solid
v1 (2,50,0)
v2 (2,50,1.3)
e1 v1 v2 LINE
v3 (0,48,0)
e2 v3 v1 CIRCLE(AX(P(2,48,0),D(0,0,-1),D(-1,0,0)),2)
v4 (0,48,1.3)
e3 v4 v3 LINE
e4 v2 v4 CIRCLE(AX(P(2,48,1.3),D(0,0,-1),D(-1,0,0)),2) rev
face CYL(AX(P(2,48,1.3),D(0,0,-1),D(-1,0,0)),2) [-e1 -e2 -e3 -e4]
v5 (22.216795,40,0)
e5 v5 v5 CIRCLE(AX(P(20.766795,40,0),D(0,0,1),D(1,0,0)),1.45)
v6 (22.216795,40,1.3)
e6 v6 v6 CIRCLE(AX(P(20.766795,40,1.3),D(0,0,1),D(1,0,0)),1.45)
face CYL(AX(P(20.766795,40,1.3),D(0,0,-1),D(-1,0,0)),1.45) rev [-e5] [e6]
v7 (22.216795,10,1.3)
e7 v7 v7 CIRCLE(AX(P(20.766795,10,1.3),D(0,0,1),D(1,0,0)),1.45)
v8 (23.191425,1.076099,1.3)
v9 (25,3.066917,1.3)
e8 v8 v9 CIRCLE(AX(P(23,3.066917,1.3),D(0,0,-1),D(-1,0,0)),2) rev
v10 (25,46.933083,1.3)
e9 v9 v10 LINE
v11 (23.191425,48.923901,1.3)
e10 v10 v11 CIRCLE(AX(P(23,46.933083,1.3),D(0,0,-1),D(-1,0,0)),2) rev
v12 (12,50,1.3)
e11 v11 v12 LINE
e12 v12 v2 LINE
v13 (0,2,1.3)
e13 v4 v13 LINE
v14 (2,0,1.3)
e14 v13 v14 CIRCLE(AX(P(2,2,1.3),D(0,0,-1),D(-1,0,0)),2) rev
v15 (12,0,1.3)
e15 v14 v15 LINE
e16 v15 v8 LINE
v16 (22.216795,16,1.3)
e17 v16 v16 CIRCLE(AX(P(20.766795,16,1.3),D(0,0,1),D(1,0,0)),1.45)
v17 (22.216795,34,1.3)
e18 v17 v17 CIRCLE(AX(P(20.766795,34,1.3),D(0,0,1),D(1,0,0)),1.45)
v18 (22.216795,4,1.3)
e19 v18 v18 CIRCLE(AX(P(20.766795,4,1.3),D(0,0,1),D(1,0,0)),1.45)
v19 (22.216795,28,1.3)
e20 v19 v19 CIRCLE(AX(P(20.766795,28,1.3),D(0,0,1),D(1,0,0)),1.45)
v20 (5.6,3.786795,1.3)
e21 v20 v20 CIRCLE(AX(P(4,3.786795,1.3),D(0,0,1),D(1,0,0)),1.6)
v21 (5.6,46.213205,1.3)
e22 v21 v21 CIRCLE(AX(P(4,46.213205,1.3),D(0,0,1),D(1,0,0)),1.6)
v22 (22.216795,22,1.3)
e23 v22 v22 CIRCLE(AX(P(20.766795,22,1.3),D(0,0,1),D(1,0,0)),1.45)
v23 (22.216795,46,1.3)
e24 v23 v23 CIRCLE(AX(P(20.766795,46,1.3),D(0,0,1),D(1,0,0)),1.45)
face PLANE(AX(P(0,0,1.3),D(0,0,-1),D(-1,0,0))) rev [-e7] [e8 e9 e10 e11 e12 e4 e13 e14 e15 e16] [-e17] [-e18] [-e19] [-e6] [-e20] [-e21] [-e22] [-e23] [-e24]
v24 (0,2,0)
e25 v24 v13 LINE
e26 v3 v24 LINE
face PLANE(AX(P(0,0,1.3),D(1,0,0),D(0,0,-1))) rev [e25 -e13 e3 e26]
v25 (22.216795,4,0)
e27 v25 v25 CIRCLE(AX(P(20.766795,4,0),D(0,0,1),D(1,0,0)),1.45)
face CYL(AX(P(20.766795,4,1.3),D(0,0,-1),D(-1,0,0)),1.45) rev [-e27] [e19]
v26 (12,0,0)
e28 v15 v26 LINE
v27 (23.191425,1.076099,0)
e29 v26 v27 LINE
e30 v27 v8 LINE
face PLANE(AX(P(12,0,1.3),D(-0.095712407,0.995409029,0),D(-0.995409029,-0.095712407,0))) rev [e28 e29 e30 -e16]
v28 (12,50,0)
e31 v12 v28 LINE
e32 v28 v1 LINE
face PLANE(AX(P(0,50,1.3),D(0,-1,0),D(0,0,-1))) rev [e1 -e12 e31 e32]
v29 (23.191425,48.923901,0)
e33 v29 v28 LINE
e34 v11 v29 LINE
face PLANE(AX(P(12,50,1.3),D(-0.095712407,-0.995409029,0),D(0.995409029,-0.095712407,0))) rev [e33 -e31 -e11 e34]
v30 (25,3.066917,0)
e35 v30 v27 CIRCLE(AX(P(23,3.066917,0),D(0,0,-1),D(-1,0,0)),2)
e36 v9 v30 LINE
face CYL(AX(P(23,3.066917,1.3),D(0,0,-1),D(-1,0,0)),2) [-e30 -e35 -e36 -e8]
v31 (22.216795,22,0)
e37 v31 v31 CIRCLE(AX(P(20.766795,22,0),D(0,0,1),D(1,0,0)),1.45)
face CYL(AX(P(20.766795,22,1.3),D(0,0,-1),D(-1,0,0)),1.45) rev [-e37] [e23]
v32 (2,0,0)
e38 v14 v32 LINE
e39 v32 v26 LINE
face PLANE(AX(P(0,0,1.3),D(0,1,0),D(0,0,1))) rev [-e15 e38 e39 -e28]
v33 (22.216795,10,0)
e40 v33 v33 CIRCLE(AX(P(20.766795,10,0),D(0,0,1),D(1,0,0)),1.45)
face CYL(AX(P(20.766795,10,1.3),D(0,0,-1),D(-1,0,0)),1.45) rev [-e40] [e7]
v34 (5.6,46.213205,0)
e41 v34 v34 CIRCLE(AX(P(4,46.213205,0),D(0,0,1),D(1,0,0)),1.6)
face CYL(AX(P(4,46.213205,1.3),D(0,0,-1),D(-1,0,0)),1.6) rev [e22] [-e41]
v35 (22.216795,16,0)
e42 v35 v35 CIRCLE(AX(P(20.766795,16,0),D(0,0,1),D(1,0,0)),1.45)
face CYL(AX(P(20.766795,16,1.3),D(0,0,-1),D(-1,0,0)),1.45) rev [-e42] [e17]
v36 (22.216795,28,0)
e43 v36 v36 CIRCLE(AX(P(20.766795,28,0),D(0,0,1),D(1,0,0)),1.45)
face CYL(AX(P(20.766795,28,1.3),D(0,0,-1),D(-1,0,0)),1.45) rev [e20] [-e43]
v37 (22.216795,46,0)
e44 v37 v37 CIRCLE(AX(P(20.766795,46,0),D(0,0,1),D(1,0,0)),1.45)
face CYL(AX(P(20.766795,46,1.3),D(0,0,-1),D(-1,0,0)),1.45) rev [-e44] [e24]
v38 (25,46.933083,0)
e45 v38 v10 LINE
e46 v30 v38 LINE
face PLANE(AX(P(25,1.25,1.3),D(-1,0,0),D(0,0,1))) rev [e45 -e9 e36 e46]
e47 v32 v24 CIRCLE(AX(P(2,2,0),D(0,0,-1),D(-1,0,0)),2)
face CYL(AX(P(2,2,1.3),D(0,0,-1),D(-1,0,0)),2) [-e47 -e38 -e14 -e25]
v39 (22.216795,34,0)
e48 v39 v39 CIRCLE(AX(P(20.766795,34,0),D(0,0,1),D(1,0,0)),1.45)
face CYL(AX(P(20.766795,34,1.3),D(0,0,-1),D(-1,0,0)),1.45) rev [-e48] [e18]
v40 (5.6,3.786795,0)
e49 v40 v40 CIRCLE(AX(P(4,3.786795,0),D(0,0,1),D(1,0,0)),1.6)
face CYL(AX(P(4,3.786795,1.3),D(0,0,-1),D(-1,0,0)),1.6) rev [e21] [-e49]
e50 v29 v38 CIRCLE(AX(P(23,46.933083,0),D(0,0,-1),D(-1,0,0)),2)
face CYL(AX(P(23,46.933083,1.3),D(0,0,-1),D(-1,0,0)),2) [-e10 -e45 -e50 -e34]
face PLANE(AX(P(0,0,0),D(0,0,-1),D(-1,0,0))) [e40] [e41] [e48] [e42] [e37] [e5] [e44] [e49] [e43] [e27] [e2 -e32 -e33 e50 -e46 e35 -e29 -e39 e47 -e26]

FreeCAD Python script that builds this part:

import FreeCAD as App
import Part
import Sketcher
Q = App.Units.Quantity


def edges_at(feature, points):
    """Names of the edges that pass closest to the given points."""
    edges = feature.Shape.Edges
    near = lambda p: min(range(len(edges)), key=lambda i: edges[i].distToShape(Part.Vertex(*p))[0])
    return sorted({f"Edge{near(p) + 1}" for p in points})


def add_polygon(sketch, points):
    """Adds a closed chain of lines whose ends are joined by coincident constraints."""
    first, n = sketch.GeometryCount, len(points)
    for a, b in zip(points, points[1:] + points[:1]):
        sketch.addGeometry(Part.LineSegment(App.Vector(*a, 0), App.Vector(*b, 0)), False)
    for i in range(n):
        sketch.addConstraint(Sketcher.Constraint("Coincident", first + i, 2, first + (i + 1) % n, 1))

doc = App.newDocument("Part")
body = doc.addObject("PartDesign::Body", "Body")

# Sketch on XY plane
sketch1 = body.newObject("Sketcher::SketchObject", "Sketch")
sketch1.AttachmentSupport = (doc.getObject("XY_Plane"), [""])
sketch1.MapMode = "FlatFace"
add_polygon(sketch1, [(25, 48.8), (12, 50), (0, 50), (0, 0), (12, 0), (25, 1.2)])  # lines 0-5
sketch1.addGeometry(Part.Circle(App.Vector(20.8, 4, 0), App.Vector(0, 0, 1), 1.4), False)  # 6
sketch1.addGeometry(Part.Circle(App.Vector(20.8, 10, 0), App.Vector(0, 0, 1), 1.4), False)  # 7
sketch1.addGeometry(Part.Circle(App.Vector(20.8, 16, 0), App.Vector(0, 0, 1), 1.4), False)  # 8
sketch1.addGeometry(Part.Circle(App.Vector(20.8, 22, 0), App.Vector(0, 0, 1), 1.4), False)  # 9
sketch1.addGeometry(Part.Circle(App.Vector(4, 3.8, 0), App.Vector(0, 0, 1), 1.6), False)  # 10
sketch1.addGeometry(Part.Circle(App.Vector(20.8, 28, 0), App.Vector(0, 0, 1), 1.4), False)  # 11
sketch1.addGeometry(Part.Circle(App.Vector(20.8, 34, 0), App.Vector(0, 0, 1), 1.4), False)  # 12
sketch1.addGeometry(Part.Circle(App.Vector(20.8, 40, 0), App.Vector(0, 0, 1), 1.4), False)  # 13
sketch1.addGeometry(Part.Circle(App.Vector(20.8, 46, 0), App.Vector(0, 0, 1), 1.4), False)  # 14
sketch1.addGeometry(Part.Circle(App.Vector(4, 46.2, 0), App.Vector(0, 0, 1), 1.6), False)  # 15
sketch1.addConstraint(Sketcher.Constraint("Horizontal", 1))
sketch1.addConstraint(Sketcher.Constraint("Vertical", 2))
sketch1.addConstraint(Sketcher.Constraint("Horizontal", 3))
sketch1.addConstraint(Sketcher.Constraint("Vertical", 5))
sketch1.addConstraint(Sketcher.Constraint("Coincident", 2, 2, -1, 1))
sketch1.addConstraint(Sketcher.Constraint("Equal", 6, 7))
sketch1.addConstraint(Sketcher.Constraint("Equal", 7, 8))
sketch1.addConstraint(Sketcher.Constraint("Equal", 8, 9))
sketch1.addConstraint(Sketcher.Constraint("Equal", 9, 11))
sketch1.addConstraint(Sketcher.Constraint("Equal", 11, 12))
sketch1.addConstraint(Sketcher.Constraint("Equal", 12, 13))
sketch1.addConstraint(Sketcher.Constraint("Equal", 13, 14))
sketch1.addConstraint(Sketcher.Constraint("Equal", 10, 15))
sketch1.addConstraint(Sketcher.Constraint("Vertical", 6, 3, 7, 3))
sketch1.addConstraint(Sketcher.Constraint("Vertical", 7, 3, 8, 3))
sketch1.addConstraint(Sketcher.Constraint("Vertical", 8, 3, 9, 3))
sketch1.addConstraint(Sketcher.Constraint("Vertical", 9, 3, 11, 3))
sketch1.addConstraint(Sketcher.Constraint("Vertical", 11, 3, 12, 3))
sketch1.addConstraint(Sketcher.Constraint("Vertical", 12, 3, 13, 3))
sketch1.addConstraint(Sketcher.Constraint("Vertical", 13, 3, 14, 3))
sketch1.addConstraint(Sketcher.Constraint("Vertical", 10, 3, 15, 3))
sketch1.addConstraint(Sketcher.Constraint("Vertical", 0, 2, 3, 2))
sketch1.addConstraint(Sketcher.Constraint("Equal", 0, 4))
sketch1.addConstraint(Sketcher.Constraint("Diameter", 6, Q("2.9 mm")))
sketch1.addConstraint(Sketcher.Constraint("Diameter", 10, Q("3.2 mm")))
sketch1.addConstraint(Sketcher.Constraint("DistanceX", 1, 2, 1, 1, Q("12 mm")))
sketch1.addConstraint(Sketcher.Constraint("DistanceY", 2, 2, 2, 1, Q("50 mm")))
sketch1.addConstraint(Sketcher.Constraint("DistanceY", 5, 1, 5, 2, Q("47.5 mm")))
sketch1.addConstraint(Sketcher.Constraint("DistanceY", -1, 1, 6, 3, Q("4 mm")))
sketch1.addConstraint(Sketcher.Constraint("DistanceY", -1, 1, 7, 3, Q("10 mm")))
sketch1.addConstraint(Sketcher.Constraint("DistanceY", -1, 1, 8, 3, Q("16 mm")))
sketch1.addConstraint(Sketcher.Constraint("DistanceY", -1, 1, 9, 3, Q("22 mm")))
sketch1.addConstraint(Sketcher.Constraint("DistanceX", -1, 1, 10, 3, Q("4 mm")))
sketch1.addConstraint(Sketcher.Constraint("DistanceY", -1, 1, 11, 3, Q("28 mm")))
sketch1.addConstraint(Sketcher.Constraint("DistanceY", -1, 1, 12, 3, Q("34 mm")))
sketch1.addConstraint(Sketcher.Constraint("DistanceY", -1, 1, 13, 3, Q("40 mm")))
sketch1.addConstraint(Sketcher.Constraint("DistanceY", -1, 1, 14, 3, Q("46 mm")))
sketch1.addConstraint(Sketcher.Constraint("DistanceX", -1, 1, 4, 2, Q("25 mm")))
sketch1.addConstraint(Sketcher.Constraint("DistanceX", -1, 1, 6, 3, Q("20.766795 mm")))
sketch1.addConstraint(Sketcher.Constraint("DistanceY", -1, 1, 10, 3, Q("3.786795 mm")))
sketch1.addConstraint(Sketcher.Constraint("DistanceY", -1, 1, 15, 3, Q("46.213205 mm")))
pad1 = body.newObject("PartDesign::Pad", "Pad")
pad1.Profile = sketch1
pad1.Length = 1.3
doc.recompute()

fillet = body.newObject("PartDesign::Fillet", "Fillet")
fillet.Base = (pad1, edges_at(pad1, [
    (0, 50, 0.65),
    (25, 48.75, 0.65),
    (25, 1.25, 0.65),
    (0, 0, 0.65),
]))
fillet.Radius = 2

doc.recompute()
